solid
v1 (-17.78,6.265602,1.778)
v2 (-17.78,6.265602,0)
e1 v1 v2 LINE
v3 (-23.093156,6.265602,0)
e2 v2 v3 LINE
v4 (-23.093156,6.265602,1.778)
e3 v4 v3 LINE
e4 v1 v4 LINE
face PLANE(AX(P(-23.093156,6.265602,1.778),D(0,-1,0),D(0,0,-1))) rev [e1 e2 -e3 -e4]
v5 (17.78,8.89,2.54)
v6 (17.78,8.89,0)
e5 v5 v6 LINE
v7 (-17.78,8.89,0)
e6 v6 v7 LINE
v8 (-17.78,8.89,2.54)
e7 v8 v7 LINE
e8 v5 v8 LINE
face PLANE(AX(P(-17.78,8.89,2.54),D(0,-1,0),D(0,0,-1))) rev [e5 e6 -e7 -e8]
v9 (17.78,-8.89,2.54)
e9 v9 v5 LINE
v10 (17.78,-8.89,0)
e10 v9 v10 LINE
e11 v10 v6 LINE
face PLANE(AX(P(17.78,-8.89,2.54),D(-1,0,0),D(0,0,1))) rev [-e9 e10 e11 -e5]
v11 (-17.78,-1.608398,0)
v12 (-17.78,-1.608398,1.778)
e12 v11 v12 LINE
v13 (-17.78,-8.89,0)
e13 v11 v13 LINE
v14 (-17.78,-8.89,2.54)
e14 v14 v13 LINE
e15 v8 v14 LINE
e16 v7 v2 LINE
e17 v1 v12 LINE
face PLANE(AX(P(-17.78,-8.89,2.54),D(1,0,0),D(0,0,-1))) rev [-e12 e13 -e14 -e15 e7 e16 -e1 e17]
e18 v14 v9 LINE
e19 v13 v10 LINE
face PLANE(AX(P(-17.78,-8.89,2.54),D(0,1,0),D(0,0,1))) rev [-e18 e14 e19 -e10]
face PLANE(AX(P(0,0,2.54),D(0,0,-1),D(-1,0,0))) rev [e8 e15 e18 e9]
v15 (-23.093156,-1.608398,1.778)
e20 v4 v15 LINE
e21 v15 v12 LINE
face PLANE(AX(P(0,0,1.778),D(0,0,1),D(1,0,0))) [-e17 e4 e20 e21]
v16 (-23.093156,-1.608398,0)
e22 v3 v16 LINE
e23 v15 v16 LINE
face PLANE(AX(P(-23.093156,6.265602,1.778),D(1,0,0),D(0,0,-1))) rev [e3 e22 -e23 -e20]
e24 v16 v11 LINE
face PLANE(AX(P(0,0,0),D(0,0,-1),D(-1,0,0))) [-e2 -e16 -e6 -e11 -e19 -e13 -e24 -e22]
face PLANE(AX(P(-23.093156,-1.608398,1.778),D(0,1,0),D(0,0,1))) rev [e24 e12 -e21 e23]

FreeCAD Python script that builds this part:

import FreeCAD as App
import Part
import Sketcher

V = App.Vector
Q = App.Units.Quantity


def add_polygon(sketch, points):
    """Adds a closed chain of lines whose ends are joined by coincident constraints."""
    first, n = sketch.GeometryCount, len(points)
    for a, b in zip(points, points[1:] + points[:1]):
        sketch.addGeometry(Part.LineSegment(App.Vector(*a, 0), App.Vector(*b, 0)), False)
    for i in range(n):
        sketch.addConstraint(Sketcher.Constraint("Coincident", first + i, 2, first + (i + 1) % n, 1))

doc = App.newDocument("Part")
body = doc.addObject("PartDesign::Body", "Body")

sketch1 = body.newObject("Sketcher::SketchObject", "Sketch")
sketch1.AttachmentSupport = (doc.getObject("XY_Plane"), [""])
sketch1.MapMode = "FlatFace"
add_polygon(sketch1, [(-17.78, 8.89), (-17.78, -8.89), (17.78, -8.89), (17.78, 8.89)])
sketch1.addConstraint(Sketcher.Constraint("Vertical", 0))
sketch1.addConstraint(Sketcher.Constraint("Horizontal", 1))
sketch1.addConstraint(Sketcher.Constraint("Vertical", 2))
sketch1.addConstraint(Sketcher.Constraint("Horizontal", 3))
sketch1.addConstraint(Sketcher.Constraint("Symmetric", 0, 2, 2, 2, -1, 1))
sketch1.addConstraint(Sketcher.Constraint("DistanceX", 1, 1, 1, 2, Q("1.4 in")))
sketch1.addConstraint(Sketcher.Constraint("DistanceY", 0, 2, 0, 1, Q("0.7 in")))
pad1 = body.newObject("PartDesign::Pad", "Pad")
pad1.Profile = sketch1
pad1.Length = Q("0.1 in")

sketch2 = body.newObject("Sketcher::SketchObject", "Sketch001")
sketch2.AttachmentSupport = (doc.getObject("XY_Plane"), [""])
sketch2.MapMode = "FlatFace"
add_polygon(sketch2, [(-23.093156, 6.265602), (-23.093156, -1.608398), (-17.251156, -1.608398), (-17.251156, 6.265602)])
sketch2.addConstraint(Sketcher.Constraint("Vertical", 0))
sketch2.addConstraint(Sketcher.Constraint("Horizontal", 1))
sketch2.addConstraint(Sketcher.Constraint("Vertical", 2))
sketch2.addConstraint(Sketcher.Constraint("Horizontal", 3))
sketch2.addConstraint(Sketcher.Constraint("DistanceX", 1, 1, 1, 2, Q("0.23 in")))
sketch2.addConstraint(Sketcher.Constraint("DistanceY", 0, 2, 0, 1, Q("0.31 in")))
sketch2.addConstraint(Sketcher.Constraint("DistanceX", 0, 2, -1, 1, 23.093156))
sketch2.addConstraint(Sketcher.Constraint("DistanceY", 0, 2, -1, 1, 1.608398))
pad2 = body.newObject("PartDesign::Pad", "Pad001")
pad2.Profile = sketch2
pad2.Length = Q("0.07 in")

doc.recompute()
